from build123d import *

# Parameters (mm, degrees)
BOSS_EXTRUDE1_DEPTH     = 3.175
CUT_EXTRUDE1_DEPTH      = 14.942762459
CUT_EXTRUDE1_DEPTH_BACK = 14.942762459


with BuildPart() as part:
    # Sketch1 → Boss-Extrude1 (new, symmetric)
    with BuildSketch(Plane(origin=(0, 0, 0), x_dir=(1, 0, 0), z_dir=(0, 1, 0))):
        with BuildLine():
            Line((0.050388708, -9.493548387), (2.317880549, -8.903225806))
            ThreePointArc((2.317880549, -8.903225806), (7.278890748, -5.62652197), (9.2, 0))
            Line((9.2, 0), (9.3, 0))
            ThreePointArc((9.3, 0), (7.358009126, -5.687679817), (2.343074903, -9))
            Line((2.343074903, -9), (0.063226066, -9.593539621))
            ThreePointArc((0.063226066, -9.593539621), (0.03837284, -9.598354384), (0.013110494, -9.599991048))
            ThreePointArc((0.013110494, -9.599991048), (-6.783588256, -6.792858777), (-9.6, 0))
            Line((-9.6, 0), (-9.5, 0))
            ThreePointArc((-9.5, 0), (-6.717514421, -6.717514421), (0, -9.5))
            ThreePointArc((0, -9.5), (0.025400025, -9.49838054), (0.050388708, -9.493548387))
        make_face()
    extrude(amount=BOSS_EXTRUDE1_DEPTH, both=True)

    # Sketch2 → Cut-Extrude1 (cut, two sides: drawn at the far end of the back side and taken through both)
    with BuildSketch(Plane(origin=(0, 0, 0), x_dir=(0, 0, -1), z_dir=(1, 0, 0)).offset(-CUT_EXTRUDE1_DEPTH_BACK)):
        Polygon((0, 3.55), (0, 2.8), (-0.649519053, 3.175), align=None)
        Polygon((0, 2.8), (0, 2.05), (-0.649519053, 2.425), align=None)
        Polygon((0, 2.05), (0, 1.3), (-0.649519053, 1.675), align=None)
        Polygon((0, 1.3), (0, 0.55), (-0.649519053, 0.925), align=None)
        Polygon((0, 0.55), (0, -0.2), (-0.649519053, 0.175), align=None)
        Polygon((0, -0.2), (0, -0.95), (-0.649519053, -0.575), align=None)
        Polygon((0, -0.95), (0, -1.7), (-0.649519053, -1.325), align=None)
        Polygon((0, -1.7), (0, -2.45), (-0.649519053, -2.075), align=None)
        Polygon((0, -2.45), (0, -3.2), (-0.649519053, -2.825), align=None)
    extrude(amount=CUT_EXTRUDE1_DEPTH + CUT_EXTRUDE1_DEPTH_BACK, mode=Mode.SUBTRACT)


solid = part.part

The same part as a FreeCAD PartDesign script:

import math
import FreeCAD as App
import Part
import Sketcher
from FreeCAD import Vector
Q = App.Units.Quantity

doc = App.newDocument("Part")
body = doc.addObject("PartDesign::Body", "Body")

# Sketch on XZ plane
sketch1 = body.newObject("Sketcher::SketchObject", "Sketch")
sketch1.AttachmentSupport = (doc.getObject("XZ_Plane"), [""])
sketch1.MapMode = "FlatFace"
sketch1.addGeometry([
    Part.LineSegment(Vector(2.32, 8.9, 0), Vector(0.05, 9.49, 0)),  # 0
    Part.ArcOfCircle(Part.Circle(Vector(0, 9.3, 0), Vector(0, 0, 1), 0.2), math.radians(75.41), math.radians(90)),  # 1
    Part.ArcOfCircle(Part.Circle(Vector(0, 0, 0), Vector(0, 0, 1), 9.5), math.radians(90), math.radians(180)),  # 2
    Part.LineSegment(Vector(-9.5, 0, 0), Vector(-9.6, 0, 0)),  # 3
    Part.ArcOfCircle(Part.Circle(Vector(0, 0, 0), Vector(0, 0, 1), 9.6), math.radians(90), math.radians(180)),  # 4
    Part.ArcOfCircle(Part.Circle(Vector(0.01, 9.4, 0), Vector(0, 0, 1), 0.2), math.radians(75.41), math.radians(89.92)),  # 5
    Part.LineSegment(Vector(0.06, 9.59, 0), Vector(2.34, 9, 0)),  # 6
    Part.ArcOfCircle(Part.Circle(Vector(0, 0, 0), Vector(0, 0, 1), 9.3), math.radians(0), math.radians(75)),  # 7
    Part.LineSegment(Vector(9.3, 0, 0), Vector(9.2, 0, 0)),  # 8
    Part.ArcOfCircle(Part.Circle(Vector(0, 0, 0), Vector(0, 0, 1), 9.2), math.radians(0), math.radians(75)),  # 9
], False)
sketch1.addConstraint([
    Sketcher.Constraint("Tangent", 0, 2, 1, 1),
    Sketcher.Constraint("Tangent", 1, 2, 2, 1),
    Sketcher.Constraint("Coincident", 2, 2, 3, 1),
    Sketcher.Constraint("Coincident", 3, 2, 4, 2),
    Sketcher.Constraint("Tangent", 4, 1, 5, 2),
    Sketcher.Constraint("Tangent", 5, 1, 6, 1),
    Sketcher.Constraint("Tangent", 6, 2, 7, 2),
    Sketcher.Constraint("Coincident", 7, 1, 8, 1),
    Sketcher.Constraint("Coincident", 8, 2, 9, 1),
    Sketcher.Constraint("Tangent", 9, 2, 0, 1),
    Sketcher.Constraint("Horizontal", 3),
    Sketcher.Constraint("Horizontal", 8),
    Sketcher.Constraint("Coincident", 2, 3, -1, 1),
    Sketcher.Constraint("Coincident", 4, 3, -1, 1),
    Sketcher.Constraint("Coincident", 7, 3, -1, 1),
    Sketcher.Constraint("Coincident", 9, 3, -1, 1),
    Sketcher.Constraint("Equal", 1, 5),
    Sketcher.Constraint("PointOnObject", 1, 3, -2),
    Sketcher.Constraint("PointOnObject", 2, 2, -1),
    Sketcher.Constraint("PointOnObject", 7, 1, -1),
    Sketcher.Constraint("Parallel", 0, 6),
    Sketcher.Constraint("Equal", 3, 8),
    Sketcher.Constraint("Radius", 1, 0.2),
    Sketcher.Constraint("Radius", 2, 9.5),
    Sketcher.Constraint("Radius", 4, 9.6),
    Sketcher.Constraint("Radius", 7, 9.3),
])
pad1 = body.newObject("PartDesign::Pad", "Pad")
pad1.Profile = sketch1
pad1.Length = 6.35
pad1.Midplane = True

# Sketch on YZ plane
sketch2 = body.newObject("Sketcher::SketchObject", "Sketch001")
sketch2.AttachmentSupport = (doc.getObject("YZ_Plane"), [""])
sketch2.MapMode = "FlatFace"
sketch2.addGeometry([
    Part.LineSegment(Vector(2.8, 0, 0), Vector(3.5, 0, 0)),  # 0
    Part.LineSegment(Vector(3.5, 0, 0), Vector(3.2, 0.6, 0)),  # 1
    Part.LineSegment(Vector(3.2, 0.6, 0), Vector(2.8, 0, 0)),  # 2
    Part.LineSegment(Vector(2, 0, 0), Vector(2.8, 0, 0)),  # 3
    Part.LineSegment(Vector(2.8, 0, 0), Vector(2.4, 0.6, 0)),  # 4
    Part.LineSegment(Vector(2.4, 0.6, 0), Vector(2, 0, 0)),  # 5
    Part.LineSegment(Vector(1.3, 0, 0), Vector(2, 0, 0)),  # 6
    Part.LineSegment(Vector(2, 0, 0), Vector(1.7, 0.6, 0)),  # 7
    Part.LineSegment(Vector(1.7, 0.6, 0), Vector(1.3, 0, 0)),  # 8
    Part.LineSegment(Vector(0.6, 0, 0), Vector(1.3, 0, 0)),  # 9
    Part.LineSegment(Vector(1.3, 0, 0), Vector(0.9, 0.6, 0)),  # 10
    Part.LineSegment(Vector(0.9, 0.6, 0), Vector(0.6, 0, 0)),  # 11
    Part.LineSegment(Vector(-0.2, 0, 0), Vector(0.6, 0, 0)),  # 12
    Part.LineSegment(Vector(0.6, 0, 0), Vector(0.2, 0.6, 0)),  # 13
    Part.LineSegment(Vector(0.2, 0.6, 0), Vector(-0.2, 0, 0)),  # 14
    Part.LineSegment(Vector(-0.9, 0, 0), Vector(-0.2, 0, 0)),  # 15
    Part.LineSegment(Vector(-0.2, 0, 0), Vector(-0.6, 0.6, 0)),  # 16
    Part.LineSegment(Vector(-0.6, 0.6, 0), Vector(-0.9, 0, 0)),  # 17
    Part.LineSegment(Vector(-1.7, 0, 0), Vector(-0.9, 0, 0)),  # 18
    Part.LineSegment(Vector(-0.9, 0, 0), Vector(-1.3, 0.6, 0)),  # 19
    Part.LineSegment(Vector(-1.3, 0.6, 0), Vector(-1.7, 0, 0)),  # 20
    Part.LineSegment(Vector(-2.5, 0, 0), Vector(-1.7, 0, 0)),  # 21
    Part.LineSegment(Vector(-1.7, 0, 0), Vector(-2.1, 0.6, 0)),  # 22
    Part.LineSegment(Vector(-2.1, 0.6, 0), Vector(-2.5, 0, 0)),  # 23
    Part.LineSegment(Vector(-3.2, 0, 0), Vector(-2.5, 0, 0)),  # 24
    Part.LineSegment(Vector(-2.5, 0, 0), Vector(-2.8, 0.6, 0)),  # 25
    Part.LineSegment(Vector(-2.8, 0.6, 0), Vector(-3.2, 0, 0)),  # 26
], False)
sketch2.addConstraint([
    Sketcher.Constraint("Coincident", 0, 2, 1, 1),
    Sketcher.Constraint("Coincident", 1, 2, 2, 1),
    Sketcher.Constraint("Coincident", 2, 2, 0, 1),
    Sketcher.Constraint("Coincident", 3, 2, 4, 1),
    Sketcher.Constraint("Coincident", 4, 2, 5, 1),
    Sketcher.Constraint("Coincident", 5, 2, 3, 1),
    Sketcher.Constraint("Coincident", 6, 2, 7, 1),
    Sketcher.Constraint("Coincident", 7, 2, 8, 1),
    Sketcher.Constraint("Coincident", 8, 2, 6, 1),
    Sketcher.Constraint("Coincident", 9, 2, 10, 1),
    Sketcher.Constraint("Coincident", 10, 2, 11, 1),
    Sketcher.Constraint("Coincident", 11, 2, 9, 1),
    Sketcher.Constraint("Coincident", 12, 2, 13, 1),
    Sketcher.Constraint("Coincident", 13, 2, 14, 1),
    Sketcher.Constraint("Coincident", 14, 2, 12, 1),
    Sketcher.Constraint("Coincident", 15, 2, 16, 1),
    Sketcher.Constraint("Coincident", 16, 2, 17, 1),
    Sketcher.Constraint("Coincident", 17, 2, 15, 1),
    Sketcher.Constraint("Coincident", 18, 2, 19, 1),
    Sketcher.Constraint("Coincident", 19, 2, 20, 1),
    Sketcher.Constraint("Coincident", 20, 2, 18, 1),
    Sketcher.Constraint("Coincident", 21, 2, 22, 1),
    Sketcher.Constraint("Coincident", 22, 2, 23, 1),
    Sketcher.Constraint("Coincident", 23, 2, 21, 1),
    Sketcher.Constraint("Coincident", 24, 2, 25, 1),
    Sketcher.Constraint("Coincident", 25, 2, 26, 1),
    Sketcher.Constraint("Coincident", 26, 2, 24, 1),
    Sketcher.Constraint("Horizontal", 0),
    Sketcher.Constraint("Horizontal", 3),
    Sketcher.Constraint("Horizontal", 6),
    Sketcher.Constraint("Horizontal", 9),
    Sketcher.Constraint("Horizontal", 12),
    Sketcher.Constraint("Horizontal", 15),
    Sketcher.Constraint("Horizontal", 18),
    Sketcher.Constraint("Horizontal", 21),
    Sketcher.Constraint("Horizontal", 24),
    Sketcher.Constraint("Coincident", 3, 2, 2, 2),
    Sketcher.Constraint("Coincident", 6, 2, 5, 2),
    Sketcher.Constraint("Coincident", 9, 2, 8, 2),
    Sketcher.Constraint("Coincident", 12, 2, 11, 2),
    Sketcher.Constraint("Coincident", 15, 2, 14, 2),
    Sketcher.Constraint("Coincident", 18, 2, 17, 2),
    Sketcher.Constraint("Coincident", 21, 2, 20, 2),
    Sketcher.Constraint("Coincident", 24, 2, 23, 2),
    Sketcher.Constraint("PointOnObject", 0, 2, -1),
    Sketcher.Constraint("Parallel", 1, 4),
    Sketcher.Constraint("Parallel", 2, 5),
    Sketcher.Constraint("Parallel", 4, 7),
    Sketcher.Constraint("Parallel", 5, 8),
    Sketcher.Constraint("Parallel", 7, 10),
    Sketcher.Constraint("Parallel", 8, 11),
    Sketcher.Constraint("Parallel", 10, 13),
    Sketcher.Constraint("Parallel", 11, 14),
    Sketcher.Constraint("Parallel", 13, 16),
    Sketcher.Constraint("Parallel", 14, 17),
    Sketcher.Constraint("Parallel", 16, 19),
    Sketcher.Constraint("Parallel", 17, 20),
    Sketcher.Constraint("Parallel", 19, 22),
    Sketcher.Constraint("Parallel", 20, 23),
    Sketcher.Constraint("Parallel", 22, 25),
    Sketcher.Constraint("Parallel", 23, 26),
    Sketcher.Constraint("Horizontal", 1, 2, 4, 2),
    Sketcher.Constraint("Horizontal", 4, 2, 7, 2),
    Sketcher.Constraint("Horizontal", 7, 2, 10, 2),
    Sketcher.Constraint("Horizontal", 10, 2, 13, 2),
    Sketcher.Constraint("Horizontal", 13, 2, 16, 2),
    Sketcher.Constraint("Horizontal", 16, 2, 19, 2),
    Sketcher.Constraint("Horizontal", 19, 2, 22, 2),
    Sketcher.Constraint("Horizontal", 22, 2, 25, 2),
    Sketcher.Constraint("Equal", 1, 2),
    Sketcher.Constraint("Angle", 1, Q("120 deg")),
    Sketcher.Constraint("DistanceX", 0, 1, 0, 2, 0.75),
    Sketcher.Constraint("DistanceX", -1, 1, 2, 2, 2.8),
])
pocket1 = body.newObject("PartDesign::Pocket", "Pocket")
pocket1.Profile = sketch2
pocket1.Type = "ThroughAll"
pocket1.Midplane = True

doc.recompute()
